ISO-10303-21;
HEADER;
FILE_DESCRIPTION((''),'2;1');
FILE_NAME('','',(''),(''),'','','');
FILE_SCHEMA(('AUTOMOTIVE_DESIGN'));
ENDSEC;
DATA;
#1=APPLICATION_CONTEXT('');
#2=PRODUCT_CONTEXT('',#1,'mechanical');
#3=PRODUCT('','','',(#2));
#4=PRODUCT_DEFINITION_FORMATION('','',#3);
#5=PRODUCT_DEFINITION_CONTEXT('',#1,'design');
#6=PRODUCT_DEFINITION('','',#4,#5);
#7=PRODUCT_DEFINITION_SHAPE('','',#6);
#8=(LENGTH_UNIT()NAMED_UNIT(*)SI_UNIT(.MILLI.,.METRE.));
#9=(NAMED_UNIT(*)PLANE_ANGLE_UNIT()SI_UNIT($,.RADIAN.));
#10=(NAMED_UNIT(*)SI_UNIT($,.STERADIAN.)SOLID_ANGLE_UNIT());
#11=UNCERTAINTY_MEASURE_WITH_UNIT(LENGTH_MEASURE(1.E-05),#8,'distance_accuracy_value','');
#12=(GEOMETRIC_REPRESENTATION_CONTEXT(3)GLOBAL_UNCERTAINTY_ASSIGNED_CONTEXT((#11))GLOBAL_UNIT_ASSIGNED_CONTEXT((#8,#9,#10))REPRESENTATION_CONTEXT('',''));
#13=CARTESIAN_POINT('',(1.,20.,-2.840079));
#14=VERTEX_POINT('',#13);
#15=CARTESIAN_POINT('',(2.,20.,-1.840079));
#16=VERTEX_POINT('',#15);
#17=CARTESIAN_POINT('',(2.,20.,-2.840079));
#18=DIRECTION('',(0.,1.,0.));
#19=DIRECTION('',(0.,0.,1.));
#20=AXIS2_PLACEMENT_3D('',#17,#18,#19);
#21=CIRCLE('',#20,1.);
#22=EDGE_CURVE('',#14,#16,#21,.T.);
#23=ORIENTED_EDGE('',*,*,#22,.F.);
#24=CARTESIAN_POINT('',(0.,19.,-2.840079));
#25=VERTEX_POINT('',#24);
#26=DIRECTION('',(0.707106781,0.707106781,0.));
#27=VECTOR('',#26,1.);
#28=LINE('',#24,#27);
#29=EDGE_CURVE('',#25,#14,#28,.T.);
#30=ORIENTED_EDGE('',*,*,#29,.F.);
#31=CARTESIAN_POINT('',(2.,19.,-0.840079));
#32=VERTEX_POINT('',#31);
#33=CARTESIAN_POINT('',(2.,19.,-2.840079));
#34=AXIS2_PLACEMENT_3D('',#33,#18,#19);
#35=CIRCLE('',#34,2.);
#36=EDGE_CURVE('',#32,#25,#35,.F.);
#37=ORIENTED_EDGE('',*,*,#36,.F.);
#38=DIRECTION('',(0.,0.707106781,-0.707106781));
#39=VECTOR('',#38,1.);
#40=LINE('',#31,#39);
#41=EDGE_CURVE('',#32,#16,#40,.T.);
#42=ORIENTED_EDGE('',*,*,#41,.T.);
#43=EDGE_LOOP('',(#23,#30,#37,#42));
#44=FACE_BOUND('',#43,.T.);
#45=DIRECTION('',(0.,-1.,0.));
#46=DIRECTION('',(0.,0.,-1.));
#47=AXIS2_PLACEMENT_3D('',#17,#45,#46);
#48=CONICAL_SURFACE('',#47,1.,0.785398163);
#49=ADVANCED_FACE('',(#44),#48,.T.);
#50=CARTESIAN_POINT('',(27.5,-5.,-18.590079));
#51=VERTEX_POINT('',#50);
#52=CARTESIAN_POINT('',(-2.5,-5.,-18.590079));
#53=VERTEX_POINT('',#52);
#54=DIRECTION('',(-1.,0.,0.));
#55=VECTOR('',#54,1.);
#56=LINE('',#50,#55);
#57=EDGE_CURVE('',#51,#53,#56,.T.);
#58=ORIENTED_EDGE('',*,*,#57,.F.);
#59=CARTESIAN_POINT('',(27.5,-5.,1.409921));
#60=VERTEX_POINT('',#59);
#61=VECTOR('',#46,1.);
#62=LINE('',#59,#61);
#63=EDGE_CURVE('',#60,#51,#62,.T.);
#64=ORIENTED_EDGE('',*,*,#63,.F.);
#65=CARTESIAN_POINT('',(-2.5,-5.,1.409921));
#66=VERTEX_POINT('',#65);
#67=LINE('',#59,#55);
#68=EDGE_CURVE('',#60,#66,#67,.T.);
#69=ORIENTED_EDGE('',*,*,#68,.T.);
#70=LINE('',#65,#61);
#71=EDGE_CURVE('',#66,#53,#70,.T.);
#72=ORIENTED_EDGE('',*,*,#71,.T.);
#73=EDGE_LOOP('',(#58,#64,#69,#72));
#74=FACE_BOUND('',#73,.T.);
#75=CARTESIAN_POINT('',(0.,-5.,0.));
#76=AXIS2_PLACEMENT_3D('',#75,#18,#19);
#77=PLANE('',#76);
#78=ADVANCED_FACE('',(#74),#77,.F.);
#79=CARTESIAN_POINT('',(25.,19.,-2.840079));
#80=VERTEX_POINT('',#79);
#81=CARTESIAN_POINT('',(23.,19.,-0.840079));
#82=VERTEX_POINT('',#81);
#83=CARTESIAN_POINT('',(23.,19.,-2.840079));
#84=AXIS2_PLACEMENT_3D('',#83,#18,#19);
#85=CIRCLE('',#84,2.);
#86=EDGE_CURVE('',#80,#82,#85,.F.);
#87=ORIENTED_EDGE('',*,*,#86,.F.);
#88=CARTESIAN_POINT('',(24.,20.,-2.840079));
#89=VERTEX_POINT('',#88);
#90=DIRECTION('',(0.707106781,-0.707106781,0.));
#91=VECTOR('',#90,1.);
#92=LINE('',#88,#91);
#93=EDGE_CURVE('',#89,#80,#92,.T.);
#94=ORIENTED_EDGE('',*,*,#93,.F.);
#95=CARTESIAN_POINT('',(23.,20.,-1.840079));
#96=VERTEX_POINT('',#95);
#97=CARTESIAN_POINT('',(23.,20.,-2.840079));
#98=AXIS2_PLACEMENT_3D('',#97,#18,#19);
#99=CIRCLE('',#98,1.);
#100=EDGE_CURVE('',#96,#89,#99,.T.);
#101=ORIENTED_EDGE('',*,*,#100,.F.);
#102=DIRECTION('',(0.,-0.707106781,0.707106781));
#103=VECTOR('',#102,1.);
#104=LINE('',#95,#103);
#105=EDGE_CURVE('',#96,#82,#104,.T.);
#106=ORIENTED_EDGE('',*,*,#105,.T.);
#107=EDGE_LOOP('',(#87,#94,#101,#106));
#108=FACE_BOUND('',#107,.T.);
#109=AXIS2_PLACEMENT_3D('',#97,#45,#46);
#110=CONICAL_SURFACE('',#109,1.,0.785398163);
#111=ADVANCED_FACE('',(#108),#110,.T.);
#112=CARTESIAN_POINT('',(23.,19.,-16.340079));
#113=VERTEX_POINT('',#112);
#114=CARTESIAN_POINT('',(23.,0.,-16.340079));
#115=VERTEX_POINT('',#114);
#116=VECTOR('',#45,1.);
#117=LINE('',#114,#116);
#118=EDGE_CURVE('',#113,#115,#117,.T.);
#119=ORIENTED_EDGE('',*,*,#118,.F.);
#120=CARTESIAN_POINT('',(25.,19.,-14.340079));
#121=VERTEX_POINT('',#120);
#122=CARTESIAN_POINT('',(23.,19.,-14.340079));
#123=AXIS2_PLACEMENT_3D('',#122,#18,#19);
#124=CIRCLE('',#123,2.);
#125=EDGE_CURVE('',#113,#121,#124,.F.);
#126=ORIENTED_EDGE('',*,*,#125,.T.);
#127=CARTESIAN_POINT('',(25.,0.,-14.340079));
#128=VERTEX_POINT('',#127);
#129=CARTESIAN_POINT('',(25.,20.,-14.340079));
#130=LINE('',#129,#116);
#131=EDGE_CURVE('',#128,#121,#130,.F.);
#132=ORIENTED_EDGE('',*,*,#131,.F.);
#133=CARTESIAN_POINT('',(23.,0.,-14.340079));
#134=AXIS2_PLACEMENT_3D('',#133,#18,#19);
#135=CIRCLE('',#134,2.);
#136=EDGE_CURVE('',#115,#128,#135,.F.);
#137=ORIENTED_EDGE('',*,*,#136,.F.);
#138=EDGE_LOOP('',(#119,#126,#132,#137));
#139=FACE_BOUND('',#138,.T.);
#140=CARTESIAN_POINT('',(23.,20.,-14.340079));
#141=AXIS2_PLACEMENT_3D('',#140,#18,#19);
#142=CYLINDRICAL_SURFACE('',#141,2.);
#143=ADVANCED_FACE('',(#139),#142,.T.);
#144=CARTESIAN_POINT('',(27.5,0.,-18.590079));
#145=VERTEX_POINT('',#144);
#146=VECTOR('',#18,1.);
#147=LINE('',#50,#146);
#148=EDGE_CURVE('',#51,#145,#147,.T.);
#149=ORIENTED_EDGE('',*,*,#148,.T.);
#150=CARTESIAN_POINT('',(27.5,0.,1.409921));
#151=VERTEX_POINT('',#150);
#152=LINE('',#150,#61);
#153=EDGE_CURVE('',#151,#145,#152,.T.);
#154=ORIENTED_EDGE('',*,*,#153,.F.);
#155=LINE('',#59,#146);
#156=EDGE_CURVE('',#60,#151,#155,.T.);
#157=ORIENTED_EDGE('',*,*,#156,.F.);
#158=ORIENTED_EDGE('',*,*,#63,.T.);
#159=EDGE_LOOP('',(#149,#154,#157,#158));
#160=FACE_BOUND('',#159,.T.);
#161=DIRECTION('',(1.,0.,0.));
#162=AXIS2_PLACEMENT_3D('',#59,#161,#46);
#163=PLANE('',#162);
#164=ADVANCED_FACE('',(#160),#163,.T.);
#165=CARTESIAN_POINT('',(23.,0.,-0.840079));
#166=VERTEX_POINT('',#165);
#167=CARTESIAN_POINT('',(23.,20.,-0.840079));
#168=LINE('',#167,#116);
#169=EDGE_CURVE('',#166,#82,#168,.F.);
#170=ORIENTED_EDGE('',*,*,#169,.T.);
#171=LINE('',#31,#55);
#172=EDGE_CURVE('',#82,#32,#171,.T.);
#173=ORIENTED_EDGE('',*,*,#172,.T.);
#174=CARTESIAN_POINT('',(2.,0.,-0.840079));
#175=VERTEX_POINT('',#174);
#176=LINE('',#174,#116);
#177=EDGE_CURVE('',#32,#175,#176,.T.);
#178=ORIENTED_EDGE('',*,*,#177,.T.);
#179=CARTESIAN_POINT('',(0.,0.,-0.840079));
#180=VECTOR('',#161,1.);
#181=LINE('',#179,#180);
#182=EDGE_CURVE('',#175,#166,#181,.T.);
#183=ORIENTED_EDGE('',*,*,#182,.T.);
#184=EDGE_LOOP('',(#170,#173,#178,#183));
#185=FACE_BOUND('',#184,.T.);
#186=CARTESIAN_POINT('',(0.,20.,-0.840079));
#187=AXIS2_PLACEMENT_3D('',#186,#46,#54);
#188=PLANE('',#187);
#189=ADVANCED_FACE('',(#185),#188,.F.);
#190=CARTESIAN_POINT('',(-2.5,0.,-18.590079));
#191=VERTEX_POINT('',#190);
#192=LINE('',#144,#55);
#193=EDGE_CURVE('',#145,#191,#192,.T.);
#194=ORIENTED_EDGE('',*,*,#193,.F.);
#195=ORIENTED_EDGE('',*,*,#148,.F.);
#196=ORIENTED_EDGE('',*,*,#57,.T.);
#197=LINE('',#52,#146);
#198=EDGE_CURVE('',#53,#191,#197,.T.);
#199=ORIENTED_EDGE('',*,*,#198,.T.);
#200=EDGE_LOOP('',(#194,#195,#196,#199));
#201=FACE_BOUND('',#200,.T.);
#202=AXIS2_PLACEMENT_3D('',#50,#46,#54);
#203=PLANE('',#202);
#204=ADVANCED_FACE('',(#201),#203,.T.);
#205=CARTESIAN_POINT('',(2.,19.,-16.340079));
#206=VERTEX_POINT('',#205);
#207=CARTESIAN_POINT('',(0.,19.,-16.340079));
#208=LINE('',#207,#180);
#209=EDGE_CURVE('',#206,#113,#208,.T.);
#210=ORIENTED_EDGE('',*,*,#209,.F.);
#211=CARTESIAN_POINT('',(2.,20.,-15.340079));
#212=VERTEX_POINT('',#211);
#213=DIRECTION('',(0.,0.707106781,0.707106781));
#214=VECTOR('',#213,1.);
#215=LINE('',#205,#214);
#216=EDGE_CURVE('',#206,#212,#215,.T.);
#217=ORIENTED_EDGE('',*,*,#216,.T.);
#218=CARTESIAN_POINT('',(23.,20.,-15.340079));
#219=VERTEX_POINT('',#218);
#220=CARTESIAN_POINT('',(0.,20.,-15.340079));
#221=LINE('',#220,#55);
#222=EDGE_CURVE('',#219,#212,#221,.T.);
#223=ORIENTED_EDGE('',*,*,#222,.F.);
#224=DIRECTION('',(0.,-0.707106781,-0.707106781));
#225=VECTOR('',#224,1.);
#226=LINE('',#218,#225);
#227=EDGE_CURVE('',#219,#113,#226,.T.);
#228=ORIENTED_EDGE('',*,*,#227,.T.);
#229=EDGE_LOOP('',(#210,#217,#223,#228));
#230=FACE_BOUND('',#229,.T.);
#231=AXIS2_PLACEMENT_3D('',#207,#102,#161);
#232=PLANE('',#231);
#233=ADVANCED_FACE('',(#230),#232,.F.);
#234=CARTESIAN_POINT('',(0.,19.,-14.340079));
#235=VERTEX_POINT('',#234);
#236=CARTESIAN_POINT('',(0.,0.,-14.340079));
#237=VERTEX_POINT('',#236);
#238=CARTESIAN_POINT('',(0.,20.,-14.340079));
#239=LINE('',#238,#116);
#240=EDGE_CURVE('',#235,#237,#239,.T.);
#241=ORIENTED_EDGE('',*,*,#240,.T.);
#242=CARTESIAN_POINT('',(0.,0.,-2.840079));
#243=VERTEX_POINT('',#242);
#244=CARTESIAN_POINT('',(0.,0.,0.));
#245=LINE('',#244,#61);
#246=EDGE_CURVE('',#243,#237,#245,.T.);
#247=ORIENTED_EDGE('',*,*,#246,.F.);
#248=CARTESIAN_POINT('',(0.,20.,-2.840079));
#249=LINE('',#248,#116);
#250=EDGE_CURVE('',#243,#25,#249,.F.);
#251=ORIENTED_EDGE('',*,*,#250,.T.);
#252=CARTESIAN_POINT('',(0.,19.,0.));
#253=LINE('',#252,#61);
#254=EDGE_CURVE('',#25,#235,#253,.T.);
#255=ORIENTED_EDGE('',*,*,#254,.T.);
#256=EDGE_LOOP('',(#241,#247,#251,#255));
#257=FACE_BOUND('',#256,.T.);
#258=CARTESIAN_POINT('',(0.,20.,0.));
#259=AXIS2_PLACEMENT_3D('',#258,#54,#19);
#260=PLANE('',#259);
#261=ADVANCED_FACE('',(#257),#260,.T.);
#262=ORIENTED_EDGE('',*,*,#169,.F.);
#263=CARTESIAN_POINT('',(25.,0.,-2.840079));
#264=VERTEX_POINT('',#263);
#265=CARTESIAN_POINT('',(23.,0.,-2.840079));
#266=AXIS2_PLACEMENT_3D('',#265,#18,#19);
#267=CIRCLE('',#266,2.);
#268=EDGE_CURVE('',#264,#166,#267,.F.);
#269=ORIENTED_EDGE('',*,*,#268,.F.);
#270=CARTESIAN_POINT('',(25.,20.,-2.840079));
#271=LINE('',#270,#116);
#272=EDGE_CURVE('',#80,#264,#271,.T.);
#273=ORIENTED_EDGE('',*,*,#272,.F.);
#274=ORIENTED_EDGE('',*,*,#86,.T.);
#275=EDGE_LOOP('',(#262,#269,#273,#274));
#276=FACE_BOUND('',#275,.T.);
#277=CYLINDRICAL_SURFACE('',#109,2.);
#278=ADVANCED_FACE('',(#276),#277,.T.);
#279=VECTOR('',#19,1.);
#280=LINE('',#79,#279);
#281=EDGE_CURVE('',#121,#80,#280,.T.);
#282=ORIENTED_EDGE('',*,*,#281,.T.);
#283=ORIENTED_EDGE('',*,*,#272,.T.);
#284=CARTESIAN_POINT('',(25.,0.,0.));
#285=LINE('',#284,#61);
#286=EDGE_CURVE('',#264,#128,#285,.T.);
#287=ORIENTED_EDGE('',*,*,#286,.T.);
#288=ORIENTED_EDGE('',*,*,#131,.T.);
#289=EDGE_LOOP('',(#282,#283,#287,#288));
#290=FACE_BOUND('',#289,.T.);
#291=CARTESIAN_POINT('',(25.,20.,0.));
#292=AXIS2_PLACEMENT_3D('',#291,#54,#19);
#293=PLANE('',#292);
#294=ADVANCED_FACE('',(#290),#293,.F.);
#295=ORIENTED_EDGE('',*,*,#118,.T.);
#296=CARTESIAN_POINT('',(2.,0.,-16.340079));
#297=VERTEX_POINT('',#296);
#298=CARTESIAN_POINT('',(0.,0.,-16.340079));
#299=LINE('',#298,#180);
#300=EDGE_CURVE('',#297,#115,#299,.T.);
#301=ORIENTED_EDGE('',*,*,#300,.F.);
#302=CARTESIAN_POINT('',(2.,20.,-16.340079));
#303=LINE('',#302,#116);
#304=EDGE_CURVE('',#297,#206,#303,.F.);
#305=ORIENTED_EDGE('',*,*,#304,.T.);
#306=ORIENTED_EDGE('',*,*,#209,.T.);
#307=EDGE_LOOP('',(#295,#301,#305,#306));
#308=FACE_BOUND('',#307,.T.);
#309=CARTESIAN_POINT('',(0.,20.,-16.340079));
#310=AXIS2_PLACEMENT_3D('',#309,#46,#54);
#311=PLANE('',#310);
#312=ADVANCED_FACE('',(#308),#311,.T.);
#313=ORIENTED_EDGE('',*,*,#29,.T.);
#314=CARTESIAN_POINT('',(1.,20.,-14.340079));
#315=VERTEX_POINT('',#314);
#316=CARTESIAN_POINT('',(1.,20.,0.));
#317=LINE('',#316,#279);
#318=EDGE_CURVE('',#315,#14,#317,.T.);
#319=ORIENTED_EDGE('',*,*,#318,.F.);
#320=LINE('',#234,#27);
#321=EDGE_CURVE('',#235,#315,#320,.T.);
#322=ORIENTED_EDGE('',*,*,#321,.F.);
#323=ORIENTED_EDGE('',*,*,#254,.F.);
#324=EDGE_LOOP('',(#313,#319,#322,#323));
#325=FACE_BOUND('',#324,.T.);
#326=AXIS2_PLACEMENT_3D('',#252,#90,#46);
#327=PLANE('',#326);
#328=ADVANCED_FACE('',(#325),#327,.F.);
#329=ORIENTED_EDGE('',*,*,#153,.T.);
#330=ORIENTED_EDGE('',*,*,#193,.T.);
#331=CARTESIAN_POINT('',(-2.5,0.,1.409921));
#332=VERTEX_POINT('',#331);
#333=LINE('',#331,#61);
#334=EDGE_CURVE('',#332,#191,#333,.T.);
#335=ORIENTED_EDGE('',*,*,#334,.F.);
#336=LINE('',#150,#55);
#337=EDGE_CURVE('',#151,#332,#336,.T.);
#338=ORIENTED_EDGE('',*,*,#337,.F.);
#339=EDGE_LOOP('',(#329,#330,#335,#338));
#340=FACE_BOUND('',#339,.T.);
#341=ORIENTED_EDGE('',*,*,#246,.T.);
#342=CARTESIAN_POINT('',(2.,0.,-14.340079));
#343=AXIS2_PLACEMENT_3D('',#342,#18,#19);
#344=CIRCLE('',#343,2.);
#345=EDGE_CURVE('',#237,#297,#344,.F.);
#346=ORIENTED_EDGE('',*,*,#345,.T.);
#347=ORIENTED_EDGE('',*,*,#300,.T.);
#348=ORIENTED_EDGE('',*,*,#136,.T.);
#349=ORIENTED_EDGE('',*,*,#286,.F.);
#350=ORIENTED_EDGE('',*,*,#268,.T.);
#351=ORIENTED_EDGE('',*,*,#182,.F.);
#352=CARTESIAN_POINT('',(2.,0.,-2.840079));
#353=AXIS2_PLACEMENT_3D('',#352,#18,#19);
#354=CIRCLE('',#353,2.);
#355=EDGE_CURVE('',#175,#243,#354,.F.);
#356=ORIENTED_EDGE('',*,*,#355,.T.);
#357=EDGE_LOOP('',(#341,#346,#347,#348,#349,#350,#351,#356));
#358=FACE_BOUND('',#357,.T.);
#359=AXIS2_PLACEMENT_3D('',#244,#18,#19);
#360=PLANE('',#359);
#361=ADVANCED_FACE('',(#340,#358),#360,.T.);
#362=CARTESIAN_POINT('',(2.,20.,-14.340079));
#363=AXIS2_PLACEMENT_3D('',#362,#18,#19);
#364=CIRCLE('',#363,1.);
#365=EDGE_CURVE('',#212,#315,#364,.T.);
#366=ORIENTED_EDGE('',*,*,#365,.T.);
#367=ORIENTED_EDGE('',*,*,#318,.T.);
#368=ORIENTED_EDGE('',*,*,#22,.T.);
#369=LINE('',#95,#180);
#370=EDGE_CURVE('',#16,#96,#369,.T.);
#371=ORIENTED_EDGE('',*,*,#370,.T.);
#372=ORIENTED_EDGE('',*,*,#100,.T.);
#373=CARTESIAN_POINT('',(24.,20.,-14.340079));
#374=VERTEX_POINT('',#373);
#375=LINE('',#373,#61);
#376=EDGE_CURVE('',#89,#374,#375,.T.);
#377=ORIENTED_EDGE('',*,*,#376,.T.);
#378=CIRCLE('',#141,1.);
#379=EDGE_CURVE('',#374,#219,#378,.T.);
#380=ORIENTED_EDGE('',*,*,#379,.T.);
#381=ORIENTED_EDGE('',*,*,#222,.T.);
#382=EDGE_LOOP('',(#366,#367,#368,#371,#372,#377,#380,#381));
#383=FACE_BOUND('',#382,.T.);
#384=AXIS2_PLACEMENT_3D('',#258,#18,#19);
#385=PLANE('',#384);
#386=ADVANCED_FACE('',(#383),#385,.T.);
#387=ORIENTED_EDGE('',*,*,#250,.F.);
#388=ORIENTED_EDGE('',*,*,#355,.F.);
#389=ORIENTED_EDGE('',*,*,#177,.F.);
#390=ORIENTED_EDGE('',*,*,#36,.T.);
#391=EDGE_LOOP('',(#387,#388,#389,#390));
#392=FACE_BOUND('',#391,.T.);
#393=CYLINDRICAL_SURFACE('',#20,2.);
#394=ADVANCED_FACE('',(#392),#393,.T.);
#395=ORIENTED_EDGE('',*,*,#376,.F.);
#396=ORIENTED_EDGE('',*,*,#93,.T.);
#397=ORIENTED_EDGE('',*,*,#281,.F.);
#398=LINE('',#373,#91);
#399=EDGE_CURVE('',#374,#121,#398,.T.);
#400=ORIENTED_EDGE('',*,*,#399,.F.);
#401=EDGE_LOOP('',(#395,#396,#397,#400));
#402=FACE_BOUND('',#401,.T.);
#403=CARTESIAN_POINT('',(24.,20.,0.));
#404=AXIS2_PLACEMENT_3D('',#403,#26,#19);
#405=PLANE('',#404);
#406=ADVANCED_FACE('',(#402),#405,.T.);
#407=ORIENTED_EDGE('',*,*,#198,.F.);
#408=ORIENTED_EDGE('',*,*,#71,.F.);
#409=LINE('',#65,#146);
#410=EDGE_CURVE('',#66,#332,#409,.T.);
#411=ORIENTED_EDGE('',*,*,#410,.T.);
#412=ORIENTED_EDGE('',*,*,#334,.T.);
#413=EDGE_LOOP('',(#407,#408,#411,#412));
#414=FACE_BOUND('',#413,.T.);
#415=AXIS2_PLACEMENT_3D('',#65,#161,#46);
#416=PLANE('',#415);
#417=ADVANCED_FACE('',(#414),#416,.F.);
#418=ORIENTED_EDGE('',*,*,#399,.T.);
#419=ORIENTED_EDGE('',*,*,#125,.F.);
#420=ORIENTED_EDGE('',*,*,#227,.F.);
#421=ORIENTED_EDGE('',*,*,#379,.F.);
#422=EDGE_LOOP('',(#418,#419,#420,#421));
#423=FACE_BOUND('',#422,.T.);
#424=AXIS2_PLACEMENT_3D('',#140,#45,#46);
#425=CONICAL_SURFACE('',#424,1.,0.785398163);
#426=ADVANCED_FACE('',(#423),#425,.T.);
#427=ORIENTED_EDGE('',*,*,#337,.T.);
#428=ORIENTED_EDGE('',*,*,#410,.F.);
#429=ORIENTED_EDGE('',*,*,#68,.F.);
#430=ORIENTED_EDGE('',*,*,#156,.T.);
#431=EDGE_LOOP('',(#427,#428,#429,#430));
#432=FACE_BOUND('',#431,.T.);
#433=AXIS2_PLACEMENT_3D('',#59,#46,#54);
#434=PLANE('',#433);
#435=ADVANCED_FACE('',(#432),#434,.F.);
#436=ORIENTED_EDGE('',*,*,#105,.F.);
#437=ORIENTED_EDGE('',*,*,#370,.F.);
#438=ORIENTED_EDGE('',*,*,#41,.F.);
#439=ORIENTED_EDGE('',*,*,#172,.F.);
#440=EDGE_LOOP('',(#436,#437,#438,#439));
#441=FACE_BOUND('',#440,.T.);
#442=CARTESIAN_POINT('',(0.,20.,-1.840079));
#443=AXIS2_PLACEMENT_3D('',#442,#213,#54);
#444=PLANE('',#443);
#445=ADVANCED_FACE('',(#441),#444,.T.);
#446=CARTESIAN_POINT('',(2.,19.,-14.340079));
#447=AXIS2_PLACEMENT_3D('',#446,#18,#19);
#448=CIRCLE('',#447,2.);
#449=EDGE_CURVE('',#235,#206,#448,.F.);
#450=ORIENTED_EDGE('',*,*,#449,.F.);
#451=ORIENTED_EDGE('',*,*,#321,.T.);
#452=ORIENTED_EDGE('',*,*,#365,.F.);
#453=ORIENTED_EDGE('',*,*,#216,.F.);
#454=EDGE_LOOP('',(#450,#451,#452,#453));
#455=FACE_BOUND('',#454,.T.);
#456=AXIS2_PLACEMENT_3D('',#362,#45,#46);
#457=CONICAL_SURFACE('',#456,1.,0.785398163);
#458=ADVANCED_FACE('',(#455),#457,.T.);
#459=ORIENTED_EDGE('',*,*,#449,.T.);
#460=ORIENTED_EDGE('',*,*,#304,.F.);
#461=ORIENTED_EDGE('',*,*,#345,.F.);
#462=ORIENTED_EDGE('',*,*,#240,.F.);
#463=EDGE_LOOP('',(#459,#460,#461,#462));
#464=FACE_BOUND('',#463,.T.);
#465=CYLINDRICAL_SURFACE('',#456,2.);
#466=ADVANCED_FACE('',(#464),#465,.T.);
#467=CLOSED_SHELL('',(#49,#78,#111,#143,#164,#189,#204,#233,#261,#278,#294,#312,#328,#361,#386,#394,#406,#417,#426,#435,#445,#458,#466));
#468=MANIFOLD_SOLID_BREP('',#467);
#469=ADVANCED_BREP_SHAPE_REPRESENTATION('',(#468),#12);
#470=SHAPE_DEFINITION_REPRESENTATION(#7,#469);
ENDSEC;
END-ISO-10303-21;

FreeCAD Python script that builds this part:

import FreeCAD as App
import Part
import Sketcher

V = App.Vector


def edges_at(feature, points):
    """Names of the edges that pass closest to the given points."""
    edges = feature.Shape.Edges
    near = lambda p: min(range(len(edges)), key=lambda i: edges[i].distToShape(Part.Vertex(*p))[0])
    return sorted({f"Edge{near(p) + 1}" for p in points})


def add_polygon(sketch, points):
    """Adds a closed chain of lines whose ends are joined by coincident constraints."""
    first, n = sketch.GeometryCount, len(points)
    for a, b in zip(points, points[1:] + points[:1]):
        sketch.addGeometry(Part.LineSegment(App.Vector(*a, 0), App.Vector(*b, 0)), False)
    for i in range(n):
        sketch.addConstraint(Sketcher.Constraint("Coincident", first + i, 2, first + (i + 1) % n, 1))

doc = App.newDocument("Part")
params = doc.addObject("Spreadsheet::Sheet", "Params")
for row, (alias, value) in enumerate([
    ("sketch1_width", "25 mm"),
    ("sketch1_height", "15.5 mm"),
    ("pad1_length", "20 mm"),
    ("sketch2_width", "30 mm"),
    ("sketch2_height", "20 mm"),
    ("pad2_length", "5 mm"),
    ("fillet_radius", "2 mm"),
    ("chamfer_size", "1 mm"),
], start=1):
    params.set(f"A{row}", alias)
    params.set(f"B{row}", "=" + value)
    params.setAlias(f"B{row}", alias)

body = doc.addObject("PartDesign::Body", "Body")

sketch1 = body.newObject("Sketcher::SketchObject", "Sketch")
sketch1.AttachmentSupport = (doc.getObject("XZ_Plane"), [""])
sketch1.MapMode = "FlatFace"
add_polygon(sketch1, [(0, -16), (0, -1), (25, -1), (25, -16)])
sketch1.addConstraint([
    Sketcher.Constraint("Vertical", 0),
    Sketcher.Constraint("Horizontal", 1),
    Sketcher.Constraint("Vertical", 2),
    Sketcher.Constraint("Horizontal", 3),
    Sketcher.Constraint("PointOnObject", 0, 2, -2),
    Sketcher.Constraint("DistanceX", 1, 1, 1, 2, 25.0),
    Sketcher.Constraint("DistanceY", 0, 1, 0, 2, 15.5),
    Sketcher.Constraint("DistanceY", 0, 2, -1, 1, 0.840079),
])
sketch1.setExpression("Constraints[9]", "Params.sketch1_width")
sketch1.setExpression("Constraints[10]", "Params.sketch1_height")
pad1 = body.newObject("PartDesign::Pad", "Pad")
pad1.Profile = sketch1
pad1.setExpression("Length", "Params.pad1_length")
pad1.Reversed = True

sketch2 = body.newObject("Sketcher::SketchObject", "Sketch001")
sketch2.AttachmentSupport = (doc.getObject("XZ_Plane"), [""])
sketch2.MapMode = "FlatFace"
add_polygon(sketch2, [(-2, -19), (-2, 1), (28, 1), (28, -19)])
sketch2.addConstraint([
    Sketcher.Constraint("Vertical", 0),
    Sketcher.Constraint("Horizontal", 1),
    Sketcher.Constraint("Vertical", 2),
    Sketcher.Constraint("Horizontal", 3),
    Sketcher.Constraint("DistanceX", 1, 1, 1, 2, 30.0),
    Sketcher.Constraint("DistanceY", 0, 1, 0, 2, 20.0),
    Sketcher.Constraint("DistanceX", 0, 2, -1, 1, 2.5),
    Sketcher.Constraint("DistanceY", -1, 1, 0, 2, 1.409921),
])
sketch2.setExpression("Constraints[8]", "Params.sketch2_width")
sketch2.setExpression("Constraints[9]", "Params.sketch2_height")
pad2 = body.newObject("PartDesign::Pad", "Pad001")
pad2.Profile = sketch2
pad2.setExpression("Length", "Params.pad2_length")
doc.recompute()

fillet = body.newObject("PartDesign::Fillet", "Fillet")
fillet.Base = (pad2, edges_at(pad2, [
    (0, 10, -0.84),
    (0, 10, -16.34),
    (25, 10, -16.34),
    (25, 10, -0.84),
]))
fillet.setExpression("Radius", "Params.fillet_radius")
doc.recompute()

chamfer = body.newObject("PartDesign::Chamfer", "Chamfer")
chamfer.Base = (fillet, edges_at(fillet, [
    (25, 20, -8.59),
    (12.5, 20, -0.84),
    (12.5, 20, -16.34),
    (0, 20, -8.59),
    (0.586, 20, -1.426),
    (0.586, 20, -15.754),
    (24.414, 20, -15.754),
    (24.414, 20, -1.426),
]))
chamfer.setExpression("Size", "Params.chamfer_size")

doc.recompute()
